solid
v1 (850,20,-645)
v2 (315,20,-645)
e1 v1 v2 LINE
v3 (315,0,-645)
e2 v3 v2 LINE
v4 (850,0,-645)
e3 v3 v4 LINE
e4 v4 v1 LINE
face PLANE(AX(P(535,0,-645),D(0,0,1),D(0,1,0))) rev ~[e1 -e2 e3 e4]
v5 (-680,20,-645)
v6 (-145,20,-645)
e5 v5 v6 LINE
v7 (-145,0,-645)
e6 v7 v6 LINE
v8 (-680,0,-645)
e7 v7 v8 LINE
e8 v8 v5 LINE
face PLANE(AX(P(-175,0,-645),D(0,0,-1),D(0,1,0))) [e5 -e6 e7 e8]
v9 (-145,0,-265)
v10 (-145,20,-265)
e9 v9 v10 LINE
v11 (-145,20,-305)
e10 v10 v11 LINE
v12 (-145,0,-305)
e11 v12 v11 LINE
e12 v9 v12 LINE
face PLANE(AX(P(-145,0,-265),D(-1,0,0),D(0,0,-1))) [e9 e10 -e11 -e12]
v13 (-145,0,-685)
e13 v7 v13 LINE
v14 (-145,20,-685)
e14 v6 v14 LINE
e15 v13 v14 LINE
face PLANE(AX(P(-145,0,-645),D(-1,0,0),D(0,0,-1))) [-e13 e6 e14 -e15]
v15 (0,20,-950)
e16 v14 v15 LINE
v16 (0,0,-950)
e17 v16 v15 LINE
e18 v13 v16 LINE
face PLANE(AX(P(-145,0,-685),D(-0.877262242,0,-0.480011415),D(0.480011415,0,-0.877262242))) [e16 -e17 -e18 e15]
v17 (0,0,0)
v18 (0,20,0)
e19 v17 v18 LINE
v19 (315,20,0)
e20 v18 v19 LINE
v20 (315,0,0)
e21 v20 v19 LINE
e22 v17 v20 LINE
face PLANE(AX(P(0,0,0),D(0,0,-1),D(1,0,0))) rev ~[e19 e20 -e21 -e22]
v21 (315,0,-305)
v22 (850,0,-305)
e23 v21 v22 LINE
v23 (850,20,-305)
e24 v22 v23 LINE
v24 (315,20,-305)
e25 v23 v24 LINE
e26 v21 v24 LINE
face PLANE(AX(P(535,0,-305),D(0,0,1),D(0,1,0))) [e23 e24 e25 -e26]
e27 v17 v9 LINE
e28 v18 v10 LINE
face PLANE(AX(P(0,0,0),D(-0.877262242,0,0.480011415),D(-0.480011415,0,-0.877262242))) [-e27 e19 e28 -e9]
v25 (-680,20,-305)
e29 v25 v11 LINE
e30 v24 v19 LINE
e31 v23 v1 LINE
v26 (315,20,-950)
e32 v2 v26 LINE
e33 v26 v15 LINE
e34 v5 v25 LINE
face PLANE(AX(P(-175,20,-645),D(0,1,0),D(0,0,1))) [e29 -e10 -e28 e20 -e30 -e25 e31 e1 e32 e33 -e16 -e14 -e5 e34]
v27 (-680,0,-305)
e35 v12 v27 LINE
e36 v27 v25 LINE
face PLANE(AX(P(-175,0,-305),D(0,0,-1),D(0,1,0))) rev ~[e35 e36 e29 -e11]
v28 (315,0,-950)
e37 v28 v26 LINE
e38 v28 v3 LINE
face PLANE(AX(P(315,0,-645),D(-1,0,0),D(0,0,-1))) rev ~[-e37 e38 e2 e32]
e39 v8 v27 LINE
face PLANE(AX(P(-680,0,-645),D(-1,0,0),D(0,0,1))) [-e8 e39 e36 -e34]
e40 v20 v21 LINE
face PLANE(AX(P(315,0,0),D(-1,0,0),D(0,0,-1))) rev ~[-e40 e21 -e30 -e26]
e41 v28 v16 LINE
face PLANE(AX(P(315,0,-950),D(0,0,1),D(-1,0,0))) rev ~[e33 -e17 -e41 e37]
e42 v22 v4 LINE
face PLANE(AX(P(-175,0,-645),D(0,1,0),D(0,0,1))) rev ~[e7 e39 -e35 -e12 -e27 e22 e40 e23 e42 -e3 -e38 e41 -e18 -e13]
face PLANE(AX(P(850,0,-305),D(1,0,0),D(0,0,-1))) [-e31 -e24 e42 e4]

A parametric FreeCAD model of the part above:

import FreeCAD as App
import Part
import Sketcher

V = App.Vector
Q = App.Units.Quantity

doc = App.newDocument("Part")
body = doc.addObject("PartDesign::Body", "Body")

sketch1 = body.newObject("Sketcher::SketchObject", "Sketch")
sketch1.AttachmentSupport = (doc.getObject("XZ_Plane"), [""])
sketch1.MapMode = "FlatFace"
sketch1.addGeometry(Part.LineSegment(V(315, 0, 0), V(315, -305, 0)), False)
sketch1.addGeometry(Part.LineSegment(V(315, -305, 0), V(535, -305, 0)), False)
sketch1.addGeometry(Part.LineSegment(V(535, -305, 0), V(535, -645, 0)), False)
sketch1.addGeometry(Part.LineSegment(V(535, -645, 0), V(315, -645, 0)), False)
sketch1.addGeometry(Part.LineSegment(V(315, -645, 0), V(315, -950, 0)), False)
sketch1.addGeometry(Part.LineSegment(V(315, -950, 0), V(0, -950, 0)), False)
sketch1.addGeometry(Part.LineSegment(V(0, -950, 0), V(-145, -685, 0)), False)
sketch1.addGeometry(Part.LineSegment(V(-145, -685, 0), V(-145, -645, 0)), False)
sketch1.addGeometry(Part.LineSegment(V(-145, -645, 0), V(-175, -645, 0)), False)
sketch1.addGeometry(Part.LineSegment(V(-175, -645, 0), V(-175, -305, 0)), False)
sketch1.addGeometry(Part.LineSegment(V(-175, -305, 0), V(-145, -305, 0)), False)
sketch1.addGeometry(Part.LineSegment(V(-145, -305, 0), V(-145, -265, 0)), False)
sketch1.addGeometry(Part.LineSegment(V(-145, -265, 0), V(0, 0, 0)), False)
sketch1.addGeometry(Part.LineSegment(V(0, 0, 0), V(315, 0, 0)), False)
sketch1.addConstraint(Sketcher.Constraint("Coincident", 0, 2, 1, 1))
sketch1.addConstraint(Sketcher.Constraint("Coincident", 1, 2, 2, 1))
sketch1.addConstraint(Sketcher.Constraint("Coincident", 2, 2, 3, 1))
sketch1.addConstraint(Sketcher.Constraint("Coincident", 3, 2, 4, 1))
sketch1.addConstraint(Sketcher.Constraint("Coincident", 4, 2, 5, 1))
sketch1.addConstraint(Sketcher.Constraint("Coincident", 5, 2, 6, 1))
sketch1.addConstraint(Sketcher.Constraint("Coincident", 6, 2, 7, 1))
sketch1.addConstraint(Sketcher.Constraint("Coincident", 7, 2, 8, 1))
sketch1.addConstraint(Sketcher.Constraint("Coincident", 8, 2, 9, 1))
sketch1.addConstraint(Sketcher.Constraint("Coincident", 9, 2, 10, 1))
sketch1.addConstraint(Sketcher.Constraint("Coincident", 10, 2, 11, 1))
sketch1.addConstraint(Sketcher.Constraint("Coincident", 11, 2, 12, 1))
sketch1.addConstraint(Sketcher.Constraint("Coincident", 12, 2, 13, 1))
sketch1.addConstraint(Sketcher.Constraint("Coincident", 13, 2, 0, 1))
sketch1.addConstraint(Sketcher.Constraint("Vertical", 0))
sketch1.addConstraint(Sketcher.Constraint("Horizontal", 1))
sketch1.addConstraint(Sketcher.Constraint("Vertical", 2))
sketch1.addConstraint(Sketcher.Constraint("Horizontal", 3))
sketch1.addConstraint(Sketcher.Constraint("Vertical", 4))
sketch1.addConstraint(Sketcher.Constraint("Horizontal", 5))
sketch1.addConstraint(Sketcher.Constraint("Vertical", 7))
sketch1.addConstraint(Sketcher.Constraint("Horizontal", 8))
sketch1.addConstraint(Sketcher.Constraint("Vertical", 9))
sketch1.addConstraint(Sketcher.Constraint("Horizontal", 10))
sketch1.addConstraint(Sketcher.Constraint("Vertical", 11))
sketch1.addConstraint(Sketcher.Constraint("Horizontal", 13))
sketch1.addConstraint(Sketcher.Constraint("Coincident", 12, 2, -1, 1))
sketch1.addConstraint(Sketcher.Constraint("PointOnObject", 5, 2, -2))
sketch1.addConstraint(Sketcher.Constraint("Horizontal", 3, 2, 7, 2))
sketch1.addConstraint(Sketcher.Constraint("Horizontal", 1, 2, 9, 2))
sketch1.addConstraint(Sketcher.Constraint("Vertical", 0, 2, 3, 2))
sketch1.addConstraint(Sketcher.Constraint("Vertical", 7, 2, 10, 2))
sketch1.addConstraint(Sketcher.Constraint("Equal", 0, 4))
sketch1.addConstraint(Sketcher.Constraint("Equal", 7, 11))
sketch1.addConstraint(Sketcher.Constraint("DistanceX", 1, 1, 1, 2, Q("220 mm")))
sketch1.addConstraint(Sketcher.Constraint("DistanceX", 5, 2, 5, 1, Q("315 mm")))
sketch1.addConstraint(Sketcher.Constraint("DistanceX", 8, 2, 8, 1, Q("30 mm")))
sketch1.addConstraint(Sketcher.Constraint("DistanceY", 7, 1, 7, 2, Q("40 mm")))
sketch1.addConstraint(Sketcher.Constraint("DistanceY", 4, 2, -1, 1, Q("950 mm")))
sketch1.addConstraint(Sketcher.Constraint("DistanceX", 8, 2, -1, 1, Q("175 mm")))
sketch1.addConstraint(Sketcher.Constraint("DistanceY", 0, 2, 0, 1, Q("305 mm")))
pad1 = body.newObject("PartDesign::Pad", "Pad")
pad1.Profile = sketch1
pad1.Length = 20
pad1.Reversed = True

sketch2 = body.newObject("Sketcher::SketchObject", "Sketch001")
sketch2.AttachmentSupport = (doc.getObject("YZ_Plane"), [""])
sketch2.MapMode = "FlatFace"
sketch2.AttachmentOffset = App.Placement(V(0, 0, 535), App.Rotation())
sketch2.addGeometry(Part.LineSegment(V(20, -305, 0), V(0, -305, 0)), False)
sketch2.addGeometry(Part.LineSegment(V(0, -305, 0), V(0, -645, 0)), False)
sketch2.addGeometry(Part.LineSegment(V(0, -645, 0), V(20, -645, 0)), False)
sketch2.addGeometry(Part.LineSegment(V(20, -645, 0), V(20, -305, 0)), False)
sketch2.addConstraint(Sketcher.Constraint("Coincident", 0, 2, 1, 1))
sketch2.addConstraint(Sketcher.Constraint("Coincident", 1, 2, 2, 1))
sketch2.addConstraint(Sketcher.Constraint("Coincident", 2, 2, 3, 1))
sketch2.addConstraint(Sketcher.Constraint("Coincident", 3, 2, 0, 1))
sketch2.addConstraint(Sketcher.Constraint("Horizontal", 0))
sketch2.addConstraint(Sketcher.Constraint("Vertical", 1))
sketch2.addConstraint(Sketcher.Constraint("Horizontal", 2))
sketch2.addConstraint(Sketcher.Constraint("Vertical", 3))
sketch2.addConstraint(Sketcher.Constraint("PointOnObject", 0, 2, -2))
sketch2.addConstraint(Sketcher.Constraint("DistanceX", 0, 2, 0, 1, Q("20 mm")))
sketch2.addConstraint(Sketcher.Constraint("DistanceY", 1, 2, 1, 1, Q("340 mm")))
sketch2.addConstraint(Sketcher.Constraint("DistanceY", 0, 2, -1, 1, Q("305 mm")))
pad2 = body.newObject("PartDesign::Pad", "Pad001")
pad2.Profile = sketch2
pad2.Length = 315

sketch3 = body.newObject("Sketcher::SketchObject", "Sketch002")
sketch3.AttachmentSupport = (doc.getObject("YZ_Plane"), [""])
sketch3.MapMode = "FlatFace"
sketch3.AttachmentOffset = App.Placement(V(0, 0, -175), App.Rotation())
sketch3.addGeometry(Part.LineSegment(V(20, -645, 0), V(0, -645, 0)), False)
sketch3.addGeometry(Part.LineSegment(V(0, -645, 0), V(0, -305, 0)), False)
sketch3.addGeometry(Part.LineSegment(V(0, -305, 0), V(20, -305, 0)), False)
sketch3.addGeometry(Part.LineSegment(V(20, -305, 0), V(20, -645, 0)), False)
sketch3.addConstraint(Sketcher.Constraint("Coincident", 0, 2, 1, 1))
sketch3.addConstraint(Sketcher.Constraint("Coincident", 1, 2, 2, 1))
sketch3.addConstraint(Sketcher.Constraint("Coincident", 2, 2, 3, 1))
sketch3.addConstraint(Sketcher.Constraint("Coincident", 3, 2, 0, 1))
sketch3.addConstraint(Sketcher.Constraint("Horizontal", 0))
sketch3.addConstraint(Sketcher.Constraint("Vertical", 1))
sketch3.addConstraint(Sketcher.Constraint("Horizontal", 2))
sketch3.addConstraint(Sketcher.Constraint("Vertical", 3))
sketch3.addConstraint(Sketcher.Constraint("PointOnObject", 0, 2, -2))
sketch3.addConstraint(Sketcher.Constraint("DistanceX", 0, 2, 0, 1, Q("20 mm")))
sketch3.addConstraint(Sketcher.Constraint("DistanceY", 1, 1, 1, 2, Q("340 mm")))
sketch3.addConstraint(Sketcher.Constraint("DistanceY", 0, 2, -1, 1, Q("645 mm")))
pad3 = body.newObject("PartDesign::Pad", "Pad002")
pad3.Profile = sketch3
pad3.Length = 505
pad3.Reversed = True

doc.recompute()
